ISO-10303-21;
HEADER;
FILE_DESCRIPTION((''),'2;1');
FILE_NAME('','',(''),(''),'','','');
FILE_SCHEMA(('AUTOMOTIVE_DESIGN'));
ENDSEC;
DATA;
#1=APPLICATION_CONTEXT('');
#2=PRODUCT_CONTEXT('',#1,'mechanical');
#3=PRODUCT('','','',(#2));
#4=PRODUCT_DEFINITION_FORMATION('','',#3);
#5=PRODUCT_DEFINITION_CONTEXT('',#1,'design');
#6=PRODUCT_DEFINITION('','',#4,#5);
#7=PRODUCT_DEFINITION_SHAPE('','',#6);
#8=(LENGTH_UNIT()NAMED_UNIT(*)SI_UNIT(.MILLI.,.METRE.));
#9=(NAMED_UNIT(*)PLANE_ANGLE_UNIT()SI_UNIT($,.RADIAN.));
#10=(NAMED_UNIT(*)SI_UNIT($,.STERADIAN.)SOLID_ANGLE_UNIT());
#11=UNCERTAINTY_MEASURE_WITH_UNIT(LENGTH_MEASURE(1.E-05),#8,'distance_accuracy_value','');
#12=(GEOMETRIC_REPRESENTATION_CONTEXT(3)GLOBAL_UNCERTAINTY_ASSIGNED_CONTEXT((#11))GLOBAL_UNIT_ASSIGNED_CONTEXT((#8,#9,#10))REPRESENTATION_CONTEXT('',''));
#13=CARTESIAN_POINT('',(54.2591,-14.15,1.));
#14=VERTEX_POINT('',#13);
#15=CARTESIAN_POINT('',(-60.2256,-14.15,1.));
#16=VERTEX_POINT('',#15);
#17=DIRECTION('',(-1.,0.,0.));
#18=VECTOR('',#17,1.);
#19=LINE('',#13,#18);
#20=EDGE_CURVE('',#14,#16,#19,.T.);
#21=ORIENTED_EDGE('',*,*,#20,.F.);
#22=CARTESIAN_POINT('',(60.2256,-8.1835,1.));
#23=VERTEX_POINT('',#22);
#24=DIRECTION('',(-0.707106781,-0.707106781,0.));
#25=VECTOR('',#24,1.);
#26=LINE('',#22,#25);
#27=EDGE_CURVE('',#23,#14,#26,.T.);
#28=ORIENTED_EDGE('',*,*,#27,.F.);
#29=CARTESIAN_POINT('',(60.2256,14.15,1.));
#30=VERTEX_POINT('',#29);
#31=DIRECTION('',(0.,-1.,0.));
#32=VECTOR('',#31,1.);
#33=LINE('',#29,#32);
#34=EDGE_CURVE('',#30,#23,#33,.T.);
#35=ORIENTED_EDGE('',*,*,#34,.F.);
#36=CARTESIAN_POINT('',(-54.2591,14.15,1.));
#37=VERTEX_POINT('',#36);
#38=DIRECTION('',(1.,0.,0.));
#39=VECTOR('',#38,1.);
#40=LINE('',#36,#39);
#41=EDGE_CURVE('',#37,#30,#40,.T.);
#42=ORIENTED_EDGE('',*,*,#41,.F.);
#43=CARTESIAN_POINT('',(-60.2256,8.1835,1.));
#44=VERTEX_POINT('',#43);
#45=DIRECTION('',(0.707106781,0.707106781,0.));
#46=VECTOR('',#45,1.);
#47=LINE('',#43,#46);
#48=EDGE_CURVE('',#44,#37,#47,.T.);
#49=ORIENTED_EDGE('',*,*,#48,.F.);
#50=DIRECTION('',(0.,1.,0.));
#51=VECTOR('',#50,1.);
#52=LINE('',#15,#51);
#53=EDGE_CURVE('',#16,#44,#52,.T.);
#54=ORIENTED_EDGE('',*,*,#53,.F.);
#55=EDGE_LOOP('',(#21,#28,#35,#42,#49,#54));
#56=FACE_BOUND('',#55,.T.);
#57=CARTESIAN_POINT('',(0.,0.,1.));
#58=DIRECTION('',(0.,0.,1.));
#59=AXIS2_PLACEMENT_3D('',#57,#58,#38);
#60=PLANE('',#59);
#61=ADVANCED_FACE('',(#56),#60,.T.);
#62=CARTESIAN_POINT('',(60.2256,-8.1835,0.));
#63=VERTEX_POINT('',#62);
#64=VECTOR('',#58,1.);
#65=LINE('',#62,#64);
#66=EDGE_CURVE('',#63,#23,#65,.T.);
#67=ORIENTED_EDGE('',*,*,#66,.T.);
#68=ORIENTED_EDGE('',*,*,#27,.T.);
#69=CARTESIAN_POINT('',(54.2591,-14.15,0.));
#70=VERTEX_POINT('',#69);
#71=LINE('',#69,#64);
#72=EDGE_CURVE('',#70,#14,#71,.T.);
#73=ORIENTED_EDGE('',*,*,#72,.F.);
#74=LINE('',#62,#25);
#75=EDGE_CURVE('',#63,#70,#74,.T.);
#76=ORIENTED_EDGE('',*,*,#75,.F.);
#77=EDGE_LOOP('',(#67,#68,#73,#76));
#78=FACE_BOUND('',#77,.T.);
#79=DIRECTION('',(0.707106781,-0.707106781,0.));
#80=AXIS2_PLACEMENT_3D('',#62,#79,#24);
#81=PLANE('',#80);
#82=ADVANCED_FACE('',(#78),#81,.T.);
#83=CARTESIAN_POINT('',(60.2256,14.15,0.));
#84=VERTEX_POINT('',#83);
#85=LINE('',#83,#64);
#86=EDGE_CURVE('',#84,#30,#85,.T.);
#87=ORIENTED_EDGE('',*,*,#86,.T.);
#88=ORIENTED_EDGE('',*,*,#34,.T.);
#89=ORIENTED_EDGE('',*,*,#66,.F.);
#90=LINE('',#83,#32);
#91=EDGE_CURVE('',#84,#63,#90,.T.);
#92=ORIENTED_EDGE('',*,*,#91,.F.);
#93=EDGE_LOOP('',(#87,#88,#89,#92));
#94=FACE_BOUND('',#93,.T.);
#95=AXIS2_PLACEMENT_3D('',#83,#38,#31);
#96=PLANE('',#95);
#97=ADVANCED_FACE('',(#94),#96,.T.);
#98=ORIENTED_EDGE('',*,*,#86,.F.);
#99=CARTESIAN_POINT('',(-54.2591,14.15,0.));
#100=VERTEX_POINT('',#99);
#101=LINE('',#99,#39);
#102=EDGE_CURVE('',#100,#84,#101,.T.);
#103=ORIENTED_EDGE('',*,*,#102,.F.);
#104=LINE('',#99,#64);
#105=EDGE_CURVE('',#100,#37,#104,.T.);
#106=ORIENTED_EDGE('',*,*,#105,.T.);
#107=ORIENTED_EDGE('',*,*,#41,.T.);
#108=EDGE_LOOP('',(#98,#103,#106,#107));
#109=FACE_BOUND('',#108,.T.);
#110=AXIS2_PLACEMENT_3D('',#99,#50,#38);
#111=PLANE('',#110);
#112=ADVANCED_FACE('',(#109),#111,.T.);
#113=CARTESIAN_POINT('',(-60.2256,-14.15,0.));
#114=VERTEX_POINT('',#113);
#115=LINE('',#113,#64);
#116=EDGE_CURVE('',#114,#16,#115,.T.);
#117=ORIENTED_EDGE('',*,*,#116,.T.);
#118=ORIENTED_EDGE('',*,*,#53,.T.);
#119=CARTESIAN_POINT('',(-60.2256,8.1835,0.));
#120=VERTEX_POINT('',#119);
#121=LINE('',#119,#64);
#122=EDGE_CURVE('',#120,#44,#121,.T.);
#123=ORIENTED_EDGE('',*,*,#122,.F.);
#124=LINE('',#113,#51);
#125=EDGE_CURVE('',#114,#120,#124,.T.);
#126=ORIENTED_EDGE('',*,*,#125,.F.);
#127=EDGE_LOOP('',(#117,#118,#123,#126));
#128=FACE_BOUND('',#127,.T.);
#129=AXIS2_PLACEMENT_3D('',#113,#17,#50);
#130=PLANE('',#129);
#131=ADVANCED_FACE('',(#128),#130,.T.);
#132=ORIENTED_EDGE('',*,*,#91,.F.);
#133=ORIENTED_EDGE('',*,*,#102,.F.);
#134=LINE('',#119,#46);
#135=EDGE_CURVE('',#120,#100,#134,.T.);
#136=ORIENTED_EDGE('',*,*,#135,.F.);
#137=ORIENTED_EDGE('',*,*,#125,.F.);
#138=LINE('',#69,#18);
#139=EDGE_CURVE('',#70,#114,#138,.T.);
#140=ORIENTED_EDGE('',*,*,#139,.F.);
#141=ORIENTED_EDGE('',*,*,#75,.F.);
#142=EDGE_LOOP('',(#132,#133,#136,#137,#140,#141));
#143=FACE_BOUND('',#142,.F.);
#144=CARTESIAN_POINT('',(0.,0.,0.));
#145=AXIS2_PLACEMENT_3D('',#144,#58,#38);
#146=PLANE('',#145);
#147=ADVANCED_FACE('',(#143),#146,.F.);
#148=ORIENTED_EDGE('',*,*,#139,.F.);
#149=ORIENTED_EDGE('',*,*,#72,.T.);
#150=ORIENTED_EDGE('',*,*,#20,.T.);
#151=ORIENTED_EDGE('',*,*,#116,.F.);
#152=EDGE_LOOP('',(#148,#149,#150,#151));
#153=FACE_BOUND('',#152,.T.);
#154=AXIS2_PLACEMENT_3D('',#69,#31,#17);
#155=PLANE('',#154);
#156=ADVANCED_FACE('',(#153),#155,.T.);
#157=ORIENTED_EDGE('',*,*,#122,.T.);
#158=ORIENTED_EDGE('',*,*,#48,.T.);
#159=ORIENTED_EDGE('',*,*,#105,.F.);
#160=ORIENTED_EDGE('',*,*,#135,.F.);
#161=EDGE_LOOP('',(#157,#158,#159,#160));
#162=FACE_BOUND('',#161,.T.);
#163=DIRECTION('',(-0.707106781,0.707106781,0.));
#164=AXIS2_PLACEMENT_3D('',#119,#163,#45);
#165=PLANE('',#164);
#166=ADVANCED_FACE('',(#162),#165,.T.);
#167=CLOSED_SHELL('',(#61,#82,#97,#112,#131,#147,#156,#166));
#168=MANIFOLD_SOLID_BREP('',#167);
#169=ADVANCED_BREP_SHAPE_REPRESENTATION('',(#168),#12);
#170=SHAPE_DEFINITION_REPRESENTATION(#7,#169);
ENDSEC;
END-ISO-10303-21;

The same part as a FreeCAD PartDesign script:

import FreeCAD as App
import Part
import Sketcher
Q = App.Units.Quantity


def add_polygon(sketch, points):
    """Adds a closed chain of lines whose ends are joined by coincident constraints."""
    first, n = sketch.GeometryCount, len(points)
    for a, b in zip(points, points[1:] + points[:1]):
        sketch.addGeometry(Part.LineSegment(App.Vector(*a, 0), App.Vector(*b, 0)), False)
    for i in range(n):
        sketch.addConstraint(Sketcher.Constraint("Coincident", first + i, 2, first + (i + 1) % n, 1))

doc = App.newDocument("Part")
params = doc.addObject("Spreadsheet::Sheet", "Params")
for row, (alias, value) in enumerate([
    ("pad1_length", "1 mm"),
], start=1):
    params.set(f"A{row}", alias)
    params.set(f"B{row}", "=" + value)
    params.setAlias(f"B{row}", alias)

body = doc.addObject("PartDesign::Body", "Body")

# Sketch on XY plane
sketch1 = doc.addObject("Sketcher::SketchObject", "Sketch")
body.addObject(sketch1)
sketch1.AttachmentSupport = (doc.XY_Plane, [""])
sketch1.MapMode = "FlatFace"
add_polygon(sketch1, [(-60, 8), (-60, -14), (54, -14), (60, -8), (60, 14), (-54, 14)])  # lines 0-5
sketch1.addConstraint([
    Sketcher.Constraint("Vertical", 0),
    Sketcher.Constraint("Horizontal", 1),
    Sketcher.Constraint("Vertical", 3),
    Sketcher.Constraint("Horizontal", 4),
    Sketcher.Constraint("Symmetric", 0, 2, 3, 2, -1, 1),
    Sketcher.Constraint("Parallel", 2, 5),
    Sketcher.Constraint("Equal", 1, 4),
    Sketcher.Constraint("Angle", 2, Q("45 deg")),
    Sketcher.Constraint("DistanceY", 1, 2, 3, 2, Q("28.3 mm")),
    Sketcher.Constraint("Distance", 2, Q("8.438 mm")),
    Sketcher.Constraint("DistanceX", 1, 1, 1, 2, Q("114.4847 mm")),
])
pad1 = doc.addObject("PartDesign::Pad", "Pad")
body.addObject(pad1)
pad1.Profile = sketch1
pad1.setExpression("Length", "Params.pad1_length")

doc.recompute()
